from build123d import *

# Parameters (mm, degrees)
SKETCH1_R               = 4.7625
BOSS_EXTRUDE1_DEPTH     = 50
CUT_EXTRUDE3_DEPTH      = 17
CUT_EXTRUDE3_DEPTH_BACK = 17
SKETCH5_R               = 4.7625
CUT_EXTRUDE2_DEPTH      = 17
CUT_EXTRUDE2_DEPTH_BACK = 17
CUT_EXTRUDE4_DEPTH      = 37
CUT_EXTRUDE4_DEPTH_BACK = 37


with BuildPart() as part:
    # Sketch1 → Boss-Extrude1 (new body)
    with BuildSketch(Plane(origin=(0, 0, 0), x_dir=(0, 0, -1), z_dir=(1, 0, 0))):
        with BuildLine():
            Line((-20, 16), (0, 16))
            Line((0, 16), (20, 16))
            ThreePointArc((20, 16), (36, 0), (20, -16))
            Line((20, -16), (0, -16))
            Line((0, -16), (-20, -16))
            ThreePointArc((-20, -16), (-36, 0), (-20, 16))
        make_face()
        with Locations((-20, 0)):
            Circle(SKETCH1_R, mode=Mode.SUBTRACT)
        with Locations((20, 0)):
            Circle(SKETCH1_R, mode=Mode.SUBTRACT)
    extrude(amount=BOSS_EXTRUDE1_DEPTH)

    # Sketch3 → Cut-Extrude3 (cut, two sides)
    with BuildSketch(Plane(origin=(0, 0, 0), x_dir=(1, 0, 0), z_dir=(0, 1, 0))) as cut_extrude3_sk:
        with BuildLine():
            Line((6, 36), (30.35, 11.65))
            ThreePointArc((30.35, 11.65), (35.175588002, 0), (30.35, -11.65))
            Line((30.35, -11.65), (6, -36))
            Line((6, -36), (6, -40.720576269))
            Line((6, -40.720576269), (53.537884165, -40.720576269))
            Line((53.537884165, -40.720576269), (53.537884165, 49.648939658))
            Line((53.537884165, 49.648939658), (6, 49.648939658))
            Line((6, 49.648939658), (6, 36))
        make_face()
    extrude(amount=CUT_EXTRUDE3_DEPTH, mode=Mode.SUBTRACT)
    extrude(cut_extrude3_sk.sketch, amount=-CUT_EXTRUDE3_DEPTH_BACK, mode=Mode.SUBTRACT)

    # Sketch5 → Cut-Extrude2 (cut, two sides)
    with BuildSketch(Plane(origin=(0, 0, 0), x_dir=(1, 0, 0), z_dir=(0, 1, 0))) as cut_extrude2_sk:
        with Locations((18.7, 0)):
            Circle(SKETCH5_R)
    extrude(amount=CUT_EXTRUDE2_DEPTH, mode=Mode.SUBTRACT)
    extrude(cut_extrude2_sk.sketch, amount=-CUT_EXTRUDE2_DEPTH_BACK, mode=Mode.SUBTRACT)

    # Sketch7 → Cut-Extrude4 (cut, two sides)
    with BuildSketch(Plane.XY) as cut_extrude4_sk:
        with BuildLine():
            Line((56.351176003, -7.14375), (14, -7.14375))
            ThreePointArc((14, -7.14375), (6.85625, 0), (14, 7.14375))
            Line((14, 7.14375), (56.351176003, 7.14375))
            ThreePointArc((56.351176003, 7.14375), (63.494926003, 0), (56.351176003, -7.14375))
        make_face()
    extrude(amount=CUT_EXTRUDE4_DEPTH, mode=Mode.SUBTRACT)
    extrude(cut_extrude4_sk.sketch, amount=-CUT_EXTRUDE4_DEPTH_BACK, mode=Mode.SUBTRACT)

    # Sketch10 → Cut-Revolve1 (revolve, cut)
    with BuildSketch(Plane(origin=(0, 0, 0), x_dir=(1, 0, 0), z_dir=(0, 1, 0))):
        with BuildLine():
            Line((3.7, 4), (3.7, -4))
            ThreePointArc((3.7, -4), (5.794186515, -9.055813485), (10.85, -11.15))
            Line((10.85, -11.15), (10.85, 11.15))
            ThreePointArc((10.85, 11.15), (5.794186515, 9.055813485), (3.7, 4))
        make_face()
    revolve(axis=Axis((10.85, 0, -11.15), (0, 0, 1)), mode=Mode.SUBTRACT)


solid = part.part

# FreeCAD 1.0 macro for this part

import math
import FreeCAD as App
import Part
import Sketcher
from FreeCAD import Vector
Q = App.Units.Quantity

doc = App.newDocument("Part")
params = doc.addObject("Spreadsheet::Sheet", "Params")
for row, (alias, value) in enumerate([
    ("sketch1_radius", "16 mm"),
    ("sketch1_height", "40 mm"),
    ("pad1_length", "50 mm"),
    ("sketch5_height", "8 mm"),
    ("sketch5_radius", "7.15 mm"),
    ("groove_angle", "360 deg"),
], start=1):
    params.set(f"A{row}", alias)
    params.set(f"B{row}", "=" + value)
    params.setAlias(f"B{row}", alias)

body = doc.addObject("PartDesign::Body", "Body")

sketch1 = body.newObject("Sketcher::SketchObject", "Sketch")
sketch1.AttachmentSupport = (doc.getObject("YZ_Plane"), [""])
sketch1.MapMode = "FlatFace"
sketch1.addGeometry([
    Part.LineSegment(Vector(16, -20, 0), Vector(16, 20, 0)),
    Part.ArcOfCircle(Part.Circle(Vector(0, 20, 0), Vector(0, 0, 1), 16), math.radians(0), math.radians(180)),
    Part.LineSegment(Vector(-16, 20, 0), Vector(-16, -20, 0)),
    Part.ArcOfCircle(Part.Circle(Vector(0, -20, 0), Vector(0, 0, 1), 16), math.radians(180), math.radians(360)),
    Part.Circle(Vector(0, -20, 0), Vector(0, 0, 1), 4.8),
    Part.Circle(Vector(0, 20, 0), Vector(0, 0, 1), 4.8),
], False)
sketch1.addConstraint([
    Sketcher.Constraint("Tangent", 0, 2, 1, 1),
    Sketcher.Constraint("Tangent", 1, 2, 2, 1),
    Sketcher.Constraint("Tangent", 2, 2, 3, 1),
    Sketcher.Constraint("Tangent", 3, 2, 0, 1),
    Sketcher.Constraint("Vertical", 0),
    Sketcher.Constraint("Vertical", 2),
    Sketcher.Constraint("Coincident", 4, 3, 3, 3),
    Sketcher.Constraint("Coincident", 5, 3, 1, 3),
    Sketcher.Constraint("Equal", 4, 5),
    Sketcher.Constraint("Symmetric", 1, 3, 3, 3, -1, 1),
    Sketcher.Constraint("Radius", 1, Q("16 mm")),
    Sketcher.Constraint("DistanceY", 0, 1, 0, 2, Q("40 mm")),
    Sketcher.Constraint("Diameter", 4, Q("9.525 mm")),
])
sketch1.setExpression("Constraints[10]", "Params.sketch1_radius")
sketch1.setExpression("Constraints[11]", "Params.sketch1_height")
pad1 = body.newObject("PartDesign::Pad", "Pad")
pad1.Profile = sketch1
pad1.setExpression("Length", "Params.pad1_length")

sketch2 = body.newObject("Sketcher::SketchObject", "Sketch001")
sketch2.AttachmentSupport = (doc.getObject("XZ_Plane"), [""])
sketch2.MapMode = "FlatFace"
sketch2.addGeometry([
    Part.LineSegment(Vector(6, -36, 0), Vector(30.4, -11.7, 0)),
    Part.ArcOfCircle(Part.Circle(Vector(18.7, 0, 0), Vector(0, 0, 1), 16.5), math.radians(-45), math.radians(45)),
    Part.LineSegment(Vector(30.4, 11.7, 0), Vector(6, 36, 0)),
    Part.LineSegment(Vector(6, 36, 0), Vector(6, 40.7, 0)),
    Part.LineSegment(Vector(6, 40.7, 0), Vector(53.5, 40.7, 0)),
    Part.LineSegment(Vector(53.5, 40.7, 0), Vector(53.5, -49.6, 0)),
    Part.LineSegment(Vector(53.5, -49.6, 0), Vector(6, -49.6, 0)),
    Part.LineSegment(Vector(6, -49.6, 0), Vector(6, -36, 0)),
], False)
sketch2.addConstraint([
    Sketcher.Constraint("Tangent", 0, 2, 1, 1),
    Sketcher.Constraint("Tangent", 1, 2, 2, 1),
    Sketcher.Constraint("Coincident", 2, 2, 3, 1),
    Sketcher.Constraint("Coincident", 3, 2, 4, 1),
    Sketcher.Constraint("Coincident", 4, 2, 5, 1),
    Sketcher.Constraint("Coincident", 5, 2, 6, 1),
    Sketcher.Constraint("Coincident", 6, 2, 7, 1),
    Sketcher.Constraint("Coincident", 7, 2, 0, 1),
    Sketcher.Constraint("Vertical", 3),
    Sketcher.Constraint("Horizontal", 4),
    Sketcher.Constraint("Vertical", 5),
    Sketcher.Constraint("Horizontal", 6),
    Sketcher.Constraint("Vertical", 7),
    Sketcher.Constraint("Symmetric", 0, 2, 1, 2, -1),
    Sketcher.Constraint("Perpendicular", 0, 2),
    Sketcher.Constraint("Vertical", 3, 2, 6, 2),
    Sketcher.Constraint("DistanceX", -1, 1, 2, 2, Q("6 mm")),
    Sketcher.Constraint("DistanceY", -1, 1, 2, 2, Q("36 mm")),
    Sketcher.Constraint("DistanceX", -1, 1, 1, 3, Q("18.7 mm")),
    Sketcher.Constraint("DistanceY", 7, 1, 7, 2, Q("13.64894 mm")),
    Sketcher.Constraint("DistanceX", 4, 1, 4, 2, Q("47.537884 mm")),
    Sketcher.Constraint("DistanceY", 3, 1, 3, 2, Q("4.720576 mm")),
])
pocket1 = body.newObject("PartDesign::Pocket", "Pocket")
pocket1.Profile = sketch2
pocket1.Type = "ThroughAll"
pocket1.Midplane = True

sketch3 = body.newObject("Sketcher::SketchObject", "Sketch002")
sketch3.AttachmentSupport = (doc.getObject("XZ_Plane"), [""])
sketch3.MapMode = "FlatFace"
sketch3.addGeometry(Part.Circle(Vector(18.7, 0, 0), Vector(0, 0, 1), 4.8), False)
sketch3.addConstraint([
    Sketcher.Constraint("PointOnObject", 0, 3, -1),
    Sketcher.Constraint("Diameter", 0, Q("9.525 mm")),
    Sketcher.Constraint("DistanceX", -1, 1, 0, 3, Q("18.7 mm")),
])
pocket2 = body.newObject("PartDesign::Pocket", "Pocket001")
pocket2.Profile = sketch3
pocket2.Type = "ThroughAll"
pocket2.Midplane = True

sketch4 = body.newObject("Sketcher::SketchObject", "Sketch003")
sketch4.AttachmentSupport = (doc.getObject("XY_Plane"), [""])
sketch4.MapMode = "FlatFace"
sketch4.addGeometry([
    Part.LineSegment(Vector(14, -7, 0), Vector(56, -7, 0)),
    Part.ArcOfCircle(Part.Circle(Vector(56, 0, 0), Vector(0, 0, 1), 7), math.radians(-90), math.radians(90)),
    Part.LineSegment(Vector(56, 7, 0), Vector(14, 7, 0)),
    Part.ArcOfCircle(Part.Circle(Vector(14, 0, 0), Vector(0, 0, 1), 7), math.radians(90), math.radians(270)),
], False)
sketch4.addConstraint([
    Sketcher.Constraint("Tangent", 0, 2, 1, 1),
    Sketcher.Constraint("Tangent", 1, 2, 2, 1),
    Sketcher.Constraint("Tangent", 2, 2, 3, 1),
    Sketcher.Constraint("Tangent", 3, 2, 0, 1),
    Sketcher.Constraint("Horizontal", 0),
    Sketcher.Constraint("Horizontal", 2),
    Sketcher.Constraint("PointOnObject", 1, 3, -1),
    Sketcher.Constraint("DistanceX", -1, 1, 3, 3, Q("14 mm")),
    Sketcher.Constraint("Radius", 1, Q("7.14375 mm")),
    Sketcher.Constraint("DistanceX", 0, 1, 0, 2, Q("42.351176 mm")),
])
pocket3 = body.newObject("PartDesign::Pocket", "Pocket002")
pocket3.Profile = sketch4
pocket3.Type = "ThroughAll"
pocket3.Midplane = True

sketch5 = body.newObject("Sketcher::SketchObject", "Sketch004")
sketch5.AttachmentSupport = (doc.getObject("XZ_Plane"), [""])
sketch5.MapMode = "FlatFace"
sketch5.addGeometry([
    Part.LineSegment(Vector(4, -4, 0), Vector(4, 4, 0)),
    Part.ArcOfCircle(Part.Circle(Vector(11, 4, 0), Vector(0, 0, 1), 7), math.radians(90), math.radians(180)),
    Part.LineSegment(Vector(11, 11, 0), Vector(11, -11, 0)),
    Part.ArcOfCircle(Part.Circle(Vector(11, -4, 0), Vector(0, 0, 1), 7), math.radians(-180), math.radians(-90)),
], False)
sketch5.addGeometry(Part.LineSegment(Vector(11, -11, 0), Vector(11, 11, 0)), True)
sketch5.addConstraint([
    Sketcher.Constraint("Tangent", 0, 2, 1, 2),
    Sketcher.Constraint("Coincident", 1, 1, 2, 1),
    Sketcher.Constraint("Coincident", 2, 2, 3, 2),
    Sketcher.Constraint("Tangent", 3, 1, 0, 1),
    Sketcher.Constraint("Vertical", 0),
    Sketcher.Constraint("Vertical", 2),
    Sketcher.Constraint("Vertical", 4),
    Sketcher.Constraint("Coincident", 4, 1, 2, 2),
    Sketcher.Constraint("Equal", 1, 3),
    Sketcher.Constraint("Vertical", 3, 3, 1, 1),
    Sketcher.Constraint("Equal", 2, 4),
    Sketcher.Constraint("DistanceY", 0, 1, 0, 2, Q("8 mm")),
    Sketcher.Constraint("Radius", 1, Q("7.15 mm")),
    Sketcher.Constraint("DistanceY", -1, 1, 1, 3, Q("4 mm")),
    Sketcher.Constraint("DistanceX", -1, 1, 0, 2, Q("3.7 mm")),
])
sketch5.setExpression("Constraints[11]", "Params.sketch5_height")
sketch5.setExpression("Constraints[12]", "Params.sketch5_radius")
groove = body.newObject("PartDesign::Groove", "Groove")
groove.Profile = sketch5
groove.ReferenceAxis = (sketch5, ["Axis0"])
groove.setExpression("Angle", "Params.groove_angle")

doc.recompute()
